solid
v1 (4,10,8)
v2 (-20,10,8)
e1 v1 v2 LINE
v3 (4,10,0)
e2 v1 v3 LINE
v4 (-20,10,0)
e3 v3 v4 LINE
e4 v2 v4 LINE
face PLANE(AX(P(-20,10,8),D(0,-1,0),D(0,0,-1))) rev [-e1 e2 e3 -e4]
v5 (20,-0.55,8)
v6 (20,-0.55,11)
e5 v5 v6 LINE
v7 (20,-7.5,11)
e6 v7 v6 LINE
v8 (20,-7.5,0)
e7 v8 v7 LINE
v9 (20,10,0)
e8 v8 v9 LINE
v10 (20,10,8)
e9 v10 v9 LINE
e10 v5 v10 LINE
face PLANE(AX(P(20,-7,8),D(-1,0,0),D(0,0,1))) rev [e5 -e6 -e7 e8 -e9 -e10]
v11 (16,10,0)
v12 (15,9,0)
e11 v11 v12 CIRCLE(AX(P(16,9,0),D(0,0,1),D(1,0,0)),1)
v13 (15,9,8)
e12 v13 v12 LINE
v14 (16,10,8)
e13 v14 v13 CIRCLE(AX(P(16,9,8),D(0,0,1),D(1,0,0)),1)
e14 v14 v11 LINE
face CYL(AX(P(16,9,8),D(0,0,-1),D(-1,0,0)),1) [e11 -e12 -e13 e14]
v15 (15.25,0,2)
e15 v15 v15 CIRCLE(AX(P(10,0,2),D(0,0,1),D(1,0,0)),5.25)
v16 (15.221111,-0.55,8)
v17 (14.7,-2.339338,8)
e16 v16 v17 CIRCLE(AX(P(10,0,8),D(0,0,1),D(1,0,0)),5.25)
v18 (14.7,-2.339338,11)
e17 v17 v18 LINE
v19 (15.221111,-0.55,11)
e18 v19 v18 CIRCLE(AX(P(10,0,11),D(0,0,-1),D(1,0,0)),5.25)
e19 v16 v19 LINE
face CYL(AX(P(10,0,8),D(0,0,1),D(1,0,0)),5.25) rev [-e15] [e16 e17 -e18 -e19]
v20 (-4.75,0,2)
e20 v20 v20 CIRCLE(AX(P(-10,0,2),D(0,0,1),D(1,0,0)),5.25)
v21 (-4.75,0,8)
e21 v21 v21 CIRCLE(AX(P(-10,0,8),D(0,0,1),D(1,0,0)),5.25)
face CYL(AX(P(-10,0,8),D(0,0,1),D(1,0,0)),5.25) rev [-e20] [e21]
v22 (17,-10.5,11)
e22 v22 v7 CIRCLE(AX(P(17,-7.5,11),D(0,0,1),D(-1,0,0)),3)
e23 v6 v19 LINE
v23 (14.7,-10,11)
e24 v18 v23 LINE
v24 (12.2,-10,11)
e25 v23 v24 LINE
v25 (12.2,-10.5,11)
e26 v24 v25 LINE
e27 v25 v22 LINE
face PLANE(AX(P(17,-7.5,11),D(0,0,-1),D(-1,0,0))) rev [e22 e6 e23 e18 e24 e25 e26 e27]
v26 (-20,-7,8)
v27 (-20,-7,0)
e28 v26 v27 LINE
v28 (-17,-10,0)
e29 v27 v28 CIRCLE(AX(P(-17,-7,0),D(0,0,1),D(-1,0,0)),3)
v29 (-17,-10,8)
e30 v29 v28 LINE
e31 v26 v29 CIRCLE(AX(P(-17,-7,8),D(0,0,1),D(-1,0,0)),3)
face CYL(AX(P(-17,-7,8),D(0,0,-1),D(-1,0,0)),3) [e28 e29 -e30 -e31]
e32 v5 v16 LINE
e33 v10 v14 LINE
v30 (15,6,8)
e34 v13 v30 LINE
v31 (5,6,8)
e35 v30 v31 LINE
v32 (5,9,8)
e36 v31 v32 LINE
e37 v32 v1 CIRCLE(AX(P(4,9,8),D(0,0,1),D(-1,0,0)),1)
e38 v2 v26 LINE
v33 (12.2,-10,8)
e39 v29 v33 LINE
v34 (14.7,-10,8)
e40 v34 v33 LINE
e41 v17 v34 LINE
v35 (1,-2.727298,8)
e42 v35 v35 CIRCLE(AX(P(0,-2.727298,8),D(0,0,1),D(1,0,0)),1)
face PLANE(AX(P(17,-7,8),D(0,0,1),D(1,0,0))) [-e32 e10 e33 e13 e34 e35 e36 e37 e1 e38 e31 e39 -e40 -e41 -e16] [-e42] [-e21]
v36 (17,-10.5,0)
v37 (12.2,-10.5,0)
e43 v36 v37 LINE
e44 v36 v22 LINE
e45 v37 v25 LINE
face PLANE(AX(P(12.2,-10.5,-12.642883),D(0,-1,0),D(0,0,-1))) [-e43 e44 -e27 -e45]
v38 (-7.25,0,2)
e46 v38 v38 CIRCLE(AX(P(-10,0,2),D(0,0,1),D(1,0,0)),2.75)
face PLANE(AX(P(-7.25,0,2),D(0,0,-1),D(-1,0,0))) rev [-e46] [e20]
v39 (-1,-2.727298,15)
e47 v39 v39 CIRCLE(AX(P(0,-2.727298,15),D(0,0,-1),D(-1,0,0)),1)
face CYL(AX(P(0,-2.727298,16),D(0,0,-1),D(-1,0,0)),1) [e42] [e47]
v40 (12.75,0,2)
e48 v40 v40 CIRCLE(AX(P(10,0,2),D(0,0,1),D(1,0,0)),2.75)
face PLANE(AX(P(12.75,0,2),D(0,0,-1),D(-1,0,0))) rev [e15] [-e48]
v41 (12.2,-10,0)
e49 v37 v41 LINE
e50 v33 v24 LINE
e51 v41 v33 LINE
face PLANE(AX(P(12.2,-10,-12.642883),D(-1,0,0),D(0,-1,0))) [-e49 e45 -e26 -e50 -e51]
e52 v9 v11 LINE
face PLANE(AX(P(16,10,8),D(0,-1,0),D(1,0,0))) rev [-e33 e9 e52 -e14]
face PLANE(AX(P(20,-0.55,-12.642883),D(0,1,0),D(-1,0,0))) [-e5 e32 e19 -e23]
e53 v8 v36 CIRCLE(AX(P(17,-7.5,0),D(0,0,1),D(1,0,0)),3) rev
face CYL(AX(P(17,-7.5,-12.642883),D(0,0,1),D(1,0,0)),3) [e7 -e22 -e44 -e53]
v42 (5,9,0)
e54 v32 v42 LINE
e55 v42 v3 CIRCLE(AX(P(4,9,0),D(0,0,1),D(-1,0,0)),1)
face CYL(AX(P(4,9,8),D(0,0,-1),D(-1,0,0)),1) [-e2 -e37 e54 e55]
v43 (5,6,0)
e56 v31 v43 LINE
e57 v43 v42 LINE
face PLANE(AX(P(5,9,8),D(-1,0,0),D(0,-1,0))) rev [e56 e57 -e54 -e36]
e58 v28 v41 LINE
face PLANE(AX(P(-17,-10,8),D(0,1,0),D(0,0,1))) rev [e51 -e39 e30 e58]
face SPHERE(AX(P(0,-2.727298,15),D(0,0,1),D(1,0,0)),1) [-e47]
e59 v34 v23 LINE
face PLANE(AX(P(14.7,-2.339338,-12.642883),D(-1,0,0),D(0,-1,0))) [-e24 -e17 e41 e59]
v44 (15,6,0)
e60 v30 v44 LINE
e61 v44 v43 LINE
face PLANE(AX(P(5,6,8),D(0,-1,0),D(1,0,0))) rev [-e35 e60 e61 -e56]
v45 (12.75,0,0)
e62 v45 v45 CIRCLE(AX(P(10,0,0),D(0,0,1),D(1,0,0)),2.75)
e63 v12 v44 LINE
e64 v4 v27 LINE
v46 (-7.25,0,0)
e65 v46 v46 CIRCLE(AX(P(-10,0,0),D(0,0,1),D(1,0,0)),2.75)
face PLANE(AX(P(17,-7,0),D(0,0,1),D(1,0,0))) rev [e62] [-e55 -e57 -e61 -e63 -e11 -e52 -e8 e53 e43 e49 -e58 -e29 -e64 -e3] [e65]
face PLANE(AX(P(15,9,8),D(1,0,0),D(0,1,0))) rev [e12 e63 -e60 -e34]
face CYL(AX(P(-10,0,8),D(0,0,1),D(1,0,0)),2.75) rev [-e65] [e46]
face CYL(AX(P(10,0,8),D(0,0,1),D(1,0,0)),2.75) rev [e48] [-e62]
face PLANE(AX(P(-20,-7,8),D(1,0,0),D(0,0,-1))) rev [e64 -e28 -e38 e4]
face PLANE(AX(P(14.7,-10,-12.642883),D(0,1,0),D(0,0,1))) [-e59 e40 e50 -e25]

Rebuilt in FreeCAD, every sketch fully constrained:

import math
import FreeCAD as App
import Part
import Sketcher
Q = App.Units.Quantity


def edges_at(feature, points):
    """Names of the edges that pass closest to the given points."""
    edges = feature.Shape.Edges
    near = lambda p: min(range(len(edges)), key=lambda i: edges[i].distToShape(Part.Vertex(*p))[0])
    return sorted({f"Edge{near(p) + 1}" for p in points})

doc = App.newDocument("Part")
body = doc.addObject("PartDesign::Body", "Body")

sketch1 = body.newObject("Sketcher::SketchObject", "Sketch")
sketch1.AttachmentSupport = (doc.getObject("XY_Plane"), [""])
sketch1.MapMode = "FlatFace"
sketch1.addGeometry(Part.LineSegment(App.Vector(-17, -10, 0), App.Vector(17, -10, 0)), False)
sketch1.addGeometry(Part.ArcOfCircle(Part.Circle(App.Vector(17, -7, 0), App.Vector(0, 0, 1), 3), math.radians(-90), math.radians(0)), False)
sketch1.addGeometry(Part.LineSegment(App.Vector(20, -7, 0), App.Vector(20, 10, 0)), False)
sketch1.addGeometry(Part.LineSegment(App.Vector(20, 10, 0), App.Vector(16, 10, 0)), False)
sketch1.addGeometry(Part.ArcOfCircle(Part.Circle(App.Vector(16, 9, 0), App.Vector(0, 0, 1), 1), math.radians(90), math.radians(180)), False)
sketch1.addGeometry(Part.LineSegment(App.Vector(15, 9, 0), App.Vector(15, 6, 0)), False)
sketch1.addGeometry(Part.LineSegment(App.Vector(15, 6, 0), App.Vector(5, 6, 0)), False)
sketch1.addGeometry(Part.LineSegment(App.Vector(5, 6, 0), App.Vector(5, 9, 0)), False)
sketch1.addGeometry(Part.ArcOfCircle(Part.Circle(App.Vector(4, 9, 0), App.Vector(0, 0, 1), 1), math.radians(0), math.radians(90)), False)
sketch1.addGeometry(Part.LineSegment(App.Vector(4, 10, 0), App.Vector(-20, 10, 0)), False)
sketch1.addGeometry(Part.LineSegment(App.Vector(-20, 10, 0), App.Vector(-20, -7, 0)), False)
sketch1.addGeometry(Part.ArcOfCircle(Part.Circle(App.Vector(-17, -7, 0), App.Vector(0, 0, 1), 3), math.radians(180), math.radians(270)), False)
sketch1.addConstraint(Sketcher.Constraint("Tangent", 0, 2, 1, 1))
sketch1.addConstraint(Sketcher.Constraint("Tangent", 1, 2, 2, 1))
sketch1.addConstraint(Sketcher.Constraint("Coincident", 2, 2, 3, 1))
sketch1.addConstraint(Sketcher.Constraint("Tangent", 3, 2, 4, 1))
sketch1.addConstraint(Sketcher.Constraint("Tangent", 4, 2, 5, 1))
sketch1.addConstraint(Sketcher.Constraint("Coincident", 5, 2, 6, 1))
sketch1.addConstraint(Sketcher.Constraint("Coincident", 6, 2, 7, 1))
sketch1.addConstraint(Sketcher.Constraint("Tangent", 7, 2, 8, 1))
sketch1.addConstraint(Sketcher.Constraint("Tangent", 8, 2, 9, 1))
sketch1.addConstraint(Sketcher.Constraint("Coincident", 9, 2, 10, 1))
sketch1.addConstraint(Sketcher.Constraint("Tangent", 10, 2, 11, 1))
sketch1.addConstraint(Sketcher.Constraint("Tangent", 11, 2, 0, 1))
sketch1.addConstraint(Sketcher.Constraint("Horizontal", 0))
sketch1.addConstraint(Sketcher.Constraint("Vertical", 2))
sketch1.addConstraint(Sketcher.Constraint("Horizontal", 3))
sketch1.addConstraint(Sketcher.Constraint("Vertical", 5))
sketch1.addConstraint(Sketcher.Constraint("Horizontal", 6))
sketch1.addConstraint(Sketcher.Constraint("Vertical", 7))
sketch1.addConstraint(Sketcher.Constraint("Horizontal", 9))
sketch1.addConstraint(Sketcher.Constraint("Vertical", 10))
sketch1.addConstraint(Sketcher.Constraint("Equal", 4, 8))
sketch1.addConstraint(Sketcher.Constraint("Equal", 1, 11))
sketch1.addConstraint(Sketcher.Constraint("Symmetric", 2, 2, 9, 2, -2))
sketch1.addConstraint(Sketcher.Constraint("Radius", 1, Q("3 mm")))
sketch1.addConstraint(Sketcher.Constraint("Radius", 4, Q("1 mm")))
sketch1.addConstraint(Sketcher.Constraint("DistanceX", 0, 1, 0, 2, Q("34 mm")))
sketch1.addConstraint(Sketcher.Constraint("DistanceX", 3, 2, 3, 1, Q("4 mm")))
sketch1.addConstraint(Sketcher.Constraint("DistanceX", 6, 2, 6, 1, Q("10 mm")))
sketch1.addConstraint(Sketcher.Constraint("DistanceY", 2, 1, 2, 2, Q("17 mm")))
sketch1.addConstraint(Sketcher.Constraint("DistanceY", 5, 2, 5, 1, Q("3 mm")))
sketch1.addConstraint(Sketcher.Constraint("DistanceY", 1, 3, -1, 1, Q("7 mm")))
pad1 = body.newObject("PartDesign::Pad", "Pad")
pad1.Profile = sketch1
pad1.Length = 8

sketch2 = body.newObject("Sketcher::SketchObject", "Sketch001")
sketch2.AttachmentSupport = (doc.getObject("XY_Plane"), [""])
sketch2.MapMode = "FlatFace"
sketch2.AttachmentOffset = App.Placement(App.Vector(0, 0, 8), App.Rotation())
sketch2.addGeometry(Part.Circle(App.Vector(-10, 0, 0), App.Vector(0, 0, 1), 2.75), False)
sketch2.addGeometry(Part.Circle(App.Vector(10, 0, 0), App.Vector(0, 0, 1), 2.75), False)
sketch2.addConstraint(Sketcher.Constraint("Equal", 0, 1))
sketch2.addConstraint(Sketcher.Constraint("Symmetric", 0, 3, 1, 3, -1, 1))
sketch2.addConstraint(Sketcher.Constraint("PointOnObject", 0, 3, -1))
sketch2.addConstraint(Sketcher.Constraint("Diameter", 0, Q("5.5 mm")))
sketch2.addConstraint(Sketcher.Constraint("DistanceX", 0, 3, -1, 1, Q("10 mm")))
doc.recompute()
hole = body.newObject("PartDesign::Hole", "Hole")
hole.Profile = sketch2
hole.ThreadType = "None"
hole.Diameter = 5.5
hole.DepthType = "Dimension"
hole.Depth = 8
hole.DrillPoint = "Flat"
hole.HoleCutType = "Counterbore"
hole.HoleCutDiameter = 10.5
hole.HoleCutDepth = 6

sketch3 = body.newObject("Sketcher::SketchObject", "Sketch002")
sketch3.AttachmentSupport = (doc.getObject("XY_Plane"), [""])
sketch3.MapMode = "FlatFace"
sketch3.AttachmentOffset = App.Placement(App.Vector(0, 0, 8), App.Rotation())
sketch3.addGeometry(Part.Circle(App.Vector(0, -2.727298, 0), App.Vector(0, 0, 1), 1), False)
sketch3.addConstraint(Sketcher.Constraint("PointOnObject", 0, 3, -2))
sketch3.addConstraint(Sketcher.Constraint("Diameter", 0, Q("2 mm")))
sketch3.addConstraint(Sketcher.Constraint("DistanceY", 0, 3, -1, 1, Q("2.727298 mm")))
pad2 = body.newObject("PartDesign::Pad", "Pad001")
pad2.Profile = sketch3
pad2.Length = 8
doc.recompute()

fillet = body.newObject("PartDesign::Fillet", "Fillet")
fillet.Base = (pad2, edges_at(pad2, [(-1, -2.727, 16)]))
fillet.Radius = 1

sketch4 = body.newObject("Sketcher::SketchObject", "Sketch003")
sketch4.AttachmentSupport = (doc.getObject("XY_Plane"), [""])
sketch4.MapMode = "FlatFace"
sketch4.AttachmentOffset = App.Placement(App.Vector(0, 0, 8), App.Rotation())
sketch4.addGeometry(Part.LineSegment(App.Vector(20, -0.55, 0), App.Vector(15.221111, -0.55, 0)), False)
sketch4.addGeometry(Part.ArcOfCircle(Part.Circle(App.Vector(10, 0, 0), App.Vector(0, 0, 1), 5.25), math.radians(-26.460971), math.radians(-6.013449)), False)
sketch4.addGeometry(Part.LineSegment(App.Vector(14.7, -2.339338, 0), App.Vector(14.7, -10, 0)), False)
sketch4.addGeometry(Part.LineSegment(App.Vector(14.7, -10, 0), App.Vector(12.2, -10, 0)), False)
sketch4.addGeometry(Part.LineSegment(App.Vector(12.2, -10, 0), App.Vector(12.2, -10.5, 0)), False)
sketch4.addGeometry(Part.LineSegment(App.Vector(12.2, -10.5, 0), App.Vector(17, -10.5, 0)), False)
sketch4.addGeometry(Part.ArcOfCircle(Part.Circle(App.Vector(17, -7.5, 0), App.Vector(0, 0, 1), 3), math.radians(-90), math.radians(0)), False)
sketch4.addGeometry(Part.LineSegment(App.Vector(20, -7.5, 0), App.Vector(20, -0.55, 0)), False)
sketch4.addConstraint(Sketcher.Constraint("Coincident", 0, 2, 1, 2))
sketch4.addConstraint(Sketcher.Constraint("Coincident", 1, 1, 2, 1))
sketch4.addConstraint(Sketcher.Constraint("Coincident", 2, 2, 3, 1))
sketch4.addConstraint(Sketcher.Constraint("Coincident", 3, 2, 4, 1))
sketch4.addConstraint(Sketcher.Constraint("Coincident", 4, 2, 5, 1))
sketch4.addConstraint(Sketcher.Constraint("Tangent", 5, 2, 6, 1))
sketch4.addConstraint(Sketcher.Constraint("Tangent", 6, 2, 7, 1))
sketch4.addConstraint(Sketcher.Constraint("Coincident", 7, 2, 0, 1))
sketch4.addConstraint(Sketcher.Constraint("Horizontal", 0))
sketch4.addConstraint(Sketcher.Constraint("Vertical", 2))
sketch4.addConstraint(Sketcher.Constraint("Horizontal", 3))
sketch4.addConstraint(Sketcher.Constraint("Vertical", 4))
sketch4.addConstraint(Sketcher.Constraint("Horizontal", 5))
sketch4.addConstraint(Sketcher.Constraint("Vertical", 7))
sketch4.addConstraint(Sketcher.Constraint("PointOnObject", 1, 3, -1))
sketch4.addConstraint(Sketcher.Constraint("Radius", 6, Q("3 mm")))
sketch4.addConstraint(Sketcher.Constraint("Radius", 1, Q("5.25 mm")))
sketch4.addConstraint(Sketcher.Constraint("DistanceX", 3, 2, 3, 1, Q("2.5 mm")))
sketch4.addConstraint(Sketcher.Constraint("DistanceX", 5, 1, 5, 2, Q("4.8 mm")))
sketch4.addConstraint(Sketcher.Constraint("DistanceY", 4, 2, 4, 1, Q("0.5 mm")))
sketch4.addConstraint(Sketcher.Constraint("DistanceX", -1, 1, 1, 3, Q("10 mm")))
sketch4.addConstraint(Sketcher.Constraint("DistanceX", -1, 1, 6, 3, Q("17 mm")))
sketch4.addConstraint(Sketcher.Constraint("DistanceY", 2, 2, -1, 1, Q("10 mm")))
sketch4.addConstraint(Sketcher.Constraint("DistanceY", 7, 1, 7, 2, Q("6.95 mm")))
pad3 = body.newObject("PartDesign::Pad", "Pad002")
pad3.Profile = sketch4
pad3.Type = "TwoLengths"
pad3.Length = 3
pad3.Length2 = 8

doc.recompute()
